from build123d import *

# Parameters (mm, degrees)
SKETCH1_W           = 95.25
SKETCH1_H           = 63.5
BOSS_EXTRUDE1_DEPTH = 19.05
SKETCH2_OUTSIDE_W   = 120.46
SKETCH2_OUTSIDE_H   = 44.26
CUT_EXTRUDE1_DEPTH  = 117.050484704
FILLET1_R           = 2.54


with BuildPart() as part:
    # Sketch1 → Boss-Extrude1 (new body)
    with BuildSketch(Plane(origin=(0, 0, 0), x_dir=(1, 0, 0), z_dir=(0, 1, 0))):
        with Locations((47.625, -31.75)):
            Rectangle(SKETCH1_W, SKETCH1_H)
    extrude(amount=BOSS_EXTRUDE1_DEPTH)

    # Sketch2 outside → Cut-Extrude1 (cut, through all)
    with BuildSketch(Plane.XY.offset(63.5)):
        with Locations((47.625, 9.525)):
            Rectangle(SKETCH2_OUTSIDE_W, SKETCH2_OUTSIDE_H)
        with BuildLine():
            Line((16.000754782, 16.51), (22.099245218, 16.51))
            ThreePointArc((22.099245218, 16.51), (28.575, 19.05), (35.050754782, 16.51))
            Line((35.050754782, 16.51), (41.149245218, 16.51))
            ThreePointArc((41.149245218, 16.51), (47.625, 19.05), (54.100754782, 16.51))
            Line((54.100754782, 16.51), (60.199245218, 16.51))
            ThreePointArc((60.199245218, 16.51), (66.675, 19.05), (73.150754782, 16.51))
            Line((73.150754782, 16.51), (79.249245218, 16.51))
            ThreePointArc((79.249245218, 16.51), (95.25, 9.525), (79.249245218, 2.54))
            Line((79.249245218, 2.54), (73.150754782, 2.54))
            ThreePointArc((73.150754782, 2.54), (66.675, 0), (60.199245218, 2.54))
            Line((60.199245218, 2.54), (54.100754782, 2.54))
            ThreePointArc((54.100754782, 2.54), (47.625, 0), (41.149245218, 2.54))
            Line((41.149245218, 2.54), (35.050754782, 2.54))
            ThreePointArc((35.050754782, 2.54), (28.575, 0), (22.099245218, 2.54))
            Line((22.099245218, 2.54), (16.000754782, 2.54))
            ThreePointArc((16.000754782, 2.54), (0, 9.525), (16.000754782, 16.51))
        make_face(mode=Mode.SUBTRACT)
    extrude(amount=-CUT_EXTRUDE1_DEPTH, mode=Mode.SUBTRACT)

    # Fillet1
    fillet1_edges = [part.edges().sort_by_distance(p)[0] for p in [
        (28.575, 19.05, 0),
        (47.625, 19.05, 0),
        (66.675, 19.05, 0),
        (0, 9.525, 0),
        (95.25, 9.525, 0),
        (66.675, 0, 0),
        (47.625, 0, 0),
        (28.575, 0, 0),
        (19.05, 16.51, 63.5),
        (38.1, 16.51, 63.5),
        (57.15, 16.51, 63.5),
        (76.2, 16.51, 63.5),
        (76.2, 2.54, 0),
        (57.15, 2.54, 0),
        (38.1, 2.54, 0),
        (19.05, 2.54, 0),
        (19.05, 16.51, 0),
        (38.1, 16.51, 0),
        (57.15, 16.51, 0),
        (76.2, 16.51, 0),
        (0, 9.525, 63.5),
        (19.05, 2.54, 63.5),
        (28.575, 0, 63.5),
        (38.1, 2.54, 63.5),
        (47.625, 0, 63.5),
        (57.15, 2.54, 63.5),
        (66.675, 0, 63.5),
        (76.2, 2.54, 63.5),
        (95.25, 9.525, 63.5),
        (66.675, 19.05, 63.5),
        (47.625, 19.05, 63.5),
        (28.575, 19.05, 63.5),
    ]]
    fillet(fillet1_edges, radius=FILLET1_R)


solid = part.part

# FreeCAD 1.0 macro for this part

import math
import FreeCAD as App
import Part
import Sketcher
Q = App.Units.Quantity


def edges_at(feature, points):
    """Names of the edges that pass closest to the given points."""
    edges = feature.Shape.Edges
    near = lambda p: min(range(len(edges)), key=lambda i: edges[i].distToShape(Part.Vertex(*p))[0])
    return sorted({f"Edge{near(p) + 1}" for p in points})


def add_polygon(sketch, points):
    """Adds a closed chain of lines whose ends are joined by coincident constraints."""
    first, n = sketch.GeometryCount, len(points)
    for a, b in zip(points, points[1:] + points[:1]):
        sketch.addGeometry(Part.LineSegment(App.Vector(*a, 0), App.Vector(*b, 0)), False)
    for i in range(n):
        sketch.addConstraint(Sketcher.Constraint("Coincident", first + i, 2, first + (i + 1) % n, 1))

doc = App.newDocument("Part")
params = doc.addObject("Spreadsheet::Sheet", "Params")
for row, (alias, value) in enumerate([
    ("sketch1_height", "2.5 in"),
    ("sketch1_width", "3.75 in"),
    ("pad1_length", "0.75 in"),
    ("sketch2_radius", "0.375 in"),
    ("fillet_radius", "0.1 in"),
], start=1):
    params.set(f"A{row}", alias)
    params.set(f"B{row}", "=" + value)
    params.setAlias(f"B{row}", alias)

body = doc.addObject("PartDesign::Body", "Body")

# Sketch on XZ plane
sketch1 = body.newObject("Sketcher::SketchObject", "Sketch")
sketch1.AttachmentSupport = (doc.getObject("XZ_Plane"), [""])
sketch1.MapMode = "FlatFace"
add_polygon(sketch1, [(0, 0), (0, 64), (95, 64), (95, 0)])  # lines 0-3
sketch1.addConstraint(Sketcher.Constraint("Vertical", 0))
sketch1.addConstraint(Sketcher.Constraint("Horizontal", 1))
sketch1.addConstraint(Sketcher.Constraint("Vertical", 2))
sketch1.addConstraint(Sketcher.Constraint("Horizontal", 3))
sketch1.addConstraint(Sketcher.Constraint("Coincident", 3, 2, -1, 1))
sketch1.addConstraint(Sketcher.Constraint("DistanceY", 0, 1, 0, 2, Q("2.5 in")))
sketch1.addConstraint(Sketcher.Constraint("DistanceX", 1, 1, 1, 2, Q("3.75 in")))
sketch1.setExpression("Constraints[9]", "Params.sketch1_height")
sketch1.setExpression("Constraints[10]", "Params.sketch1_width")
pad1 = body.newObject("PartDesign::Pad", "Pad")
pad1.Profile = sketch1
pad1.setExpression("Length", "Params.pad1_length")
pad1.Reversed = True

# Sketch on XY plane
sketch2 = body.newObject("Sketcher::SketchObject", "Sketch001")
sketch2.AttachmentSupport = (doc.getObject("XY_Plane"), [""])
sketch2.MapMode = "FlatFace"
sketch2.AttachmentOffset = App.Placement(App.Vector(0, 0, 2.5 * 25.4), App.Rotation())
add_polygon(sketch2, [(-13, 32), (-13, -13), (108, -13), (108, 32)])  # lines 0-3
sketch2.addGeometry(Part.ArcOfCircle(Part.Circle(App.Vector(10, 10, 0), App.Vector(0, 0, 1), 10), math.radians(47), math.radians(313)), False)  # 4
sketch2.addGeometry(Part.LineSegment(App.Vector(16, 17, 0), App.Vector(22, 17, 0)), False)  # 5
sketch2.addGeometry(Part.ArcOfCircle(Part.Circle(App.Vector(29, 10, 0), App.Vector(0, 0, 1), 10), math.radians(47), math.radians(133)), False)  # 6
sketch2.addGeometry(Part.LineSegment(App.Vector(35, 17, 0), App.Vector(41, 17, 0)), False)  # 7
sketch2.addGeometry(Part.ArcOfCircle(Part.Circle(App.Vector(48, 10, 0), App.Vector(0, 0, 1), 10), math.radians(47), math.radians(133)), False)  # 8
sketch2.addGeometry(Part.LineSegment(App.Vector(54, 17, 0), App.Vector(60, 17, 0)), False)  # 9
sketch2.addGeometry(Part.ArcOfCircle(Part.Circle(App.Vector(67, 10, 0), App.Vector(0, 0, 1), 10), math.radians(47), math.radians(133)), False)  # 10
sketch2.addGeometry(Part.LineSegment(App.Vector(73, 17, 0), App.Vector(79, 17, 0)), False)  # 11
sketch2.addGeometry(Part.ArcOfCircle(Part.Circle(App.Vector(86, 10, 0), App.Vector(0, 0, 1), 10), math.radians(-133), math.radians(133)), False)  # 12
sketch2.addGeometry(Part.LineSegment(App.Vector(79, 3, 0), App.Vector(73, 3, 0)), False)  # 13
sketch2.addGeometry(Part.ArcOfCircle(Part.Circle(App.Vector(67, 10, 0), App.Vector(0, 0, 1), 10), math.radians(-133), math.radians(-47)), False)  # 14
sketch2.addGeometry(Part.LineSegment(App.Vector(60, 3, 0), App.Vector(54, 3, 0)), False)  # 15
sketch2.addGeometry(Part.ArcOfCircle(Part.Circle(App.Vector(48, 10, 0), App.Vector(0, 0, 1), 10), math.radians(-133), math.radians(-47)), False)  # 16
sketch2.addGeometry(Part.LineSegment(App.Vector(41, 3, 0), App.Vector(35, 3, 0)), False)  # 17
sketch2.addGeometry(Part.ArcOfCircle(Part.Circle(App.Vector(29, 10, 0), App.Vector(0, 0, 1), 10), math.radians(-133), math.radians(-47)), False)  # 18
sketch2.addGeometry(Part.LineSegment(App.Vector(22, 3, 0), App.Vector(16, 3, 0)), False)  # 19
sketch2.addConstraint(Sketcher.Constraint("Coincident", 4, 1, 5, 1))
sketch2.addConstraint(Sketcher.Constraint("Coincident", 5, 2, 6, 2))
sketch2.addConstraint(Sketcher.Constraint("Coincident", 6, 1, 7, 1))
sketch2.addConstraint(Sketcher.Constraint("Coincident", 7, 2, 8, 2))
sketch2.addConstraint(Sketcher.Constraint("Coincident", 8, 1, 9, 1))
sketch2.addConstraint(Sketcher.Constraint("Coincident", 9, 2, 10, 2))
sketch2.addConstraint(Sketcher.Constraint("Coincident", 10, 1, 11, 1))
sketch2.addConstraint(Sketcher.Constraint("Coincident", 11, 2, 12, 2))
sketch2.addConstraint(Sketcher.Constraint("Coincident", 12, 1, 13, 1))
sketch2.addConstraint(Sketcher.Constraint("Coincident", 13, 2, 14, 2))
sketch2.addConstraint(Sketcher.Constraint("Coincident", 14, 1, 15, 1))
sketch2.addConstraint(Sketcher.Constraint("Coincident", 15, 2, 16, 2))
sketch2.addConstraint(Sketcher.Constraint("Coincident", 16, 1, 17, 1))
sketch2.addConstraint(Sketcher.Constraint("Coincident", 17, 2, 18, 2))
sketch2.addConstraint(Sketcher.Constraint("Coincident", 18, 1, 19, 1))
sketch2.addConstraint(Sketcher.Constraint("Coincident", 19, 2, 4, 2))
sketch2.addConstraint(Sketcher.Constraint("Vertical", 0))
sketch2.addConstraint(Sketcher.Constraint("Horizontal", 1))
sketch2.addConstraint(Sketcher.Constraint("Vertical", 2))
sketch2.addConstraint(Sketcher.Constraint("Horizontal", 3))
sketch2.addConstraint(Sketcher.Constraint("Horizontal", 5))
sketch2.addConstraint(Sketcher.Constraint("Horizontal", 7))
sketch2.addConstraint(Sketcher.Constraint("Horizontal", 9))
sketch2.addConstraint(Sketcher.Constraint("Horizontal", 11))
sketch2.addConstraint(Sketcher.Constraint("Horizontal", 13))
sketch2.addConstraint(Sketcher.Constraint("Horizontal", 15))
sketch2.addConstraint(Sketcher.Constraint("Horizontal", 17))
sketch2.addConstraint(Sketcher.Constraint("Horizontal", 19))
sketch2.addConstraint(Sketcher.Constraint("Coincident", 14, 3, 10, 3))
sketch2.addConstraint(Sketcher.Constraint("Coincident", 16, 3, 8, 3))
sketch2.addConstraint(Sketcher.Constraint("Coincident", 18, 3, 6, 3))
sketch2.addConstraint(Sketcher.Constraint("Equal", 4, 6))
sketch2.addConstraint(Sketcher.Constraint("Equal", 6, 8))
sketch2.addConstraint(Sketcher.Constraint("Equal", 8, 10))
sketch2.addConstraint(Sketcher.Constraint("Equal", 10, 12))
sketch2.addConstraint(Sketcher.Constraint("Equal", 12, 14))
sketch2.addConstraint(Sketcher.Constraint("Equal", 14, 16))
sketch2.addConstraint(Sketcher.Constraint("Equal", 16, 18))
sketch2.addConstraint(Sketcher.Constraint("Horizontal", 4, 3, 6, 3))
sketch2.addConstraint(Sketcher.Constraint("Horizontal", 6, 3, 8, 3))
sketch2.addConstraint(Sketcher.Constraint("Horizontal", 8, 3, 10, 3))
sketch2.addConstraint(Sketcher.Constraint("Horizontal", 10, 3, 12, 3))
sketch2.addConstraint(Sketcher.Constraint("Horizontal", 5, 2, 6, 1))
sketch2.addConstraint(Sketcher.Constraint("Horizontal", 7, 2, 8, 1))
sketch2.addConstraint(Sketcher.Constraint("Horizontal", 9, 2, 10, 1))
sketch2.addConstraint(Sketcher.Constraint("Horizontal", 13, 2, 14, 1))
sketch2.addConstraint(Sketcher.Constraint("Horizontal", 15, 2, 16, 1))
sketch2.addConstraint(Sketcher.Constraint("Horizontal", 17, 2, 18, 1))
sketch2.addConstraint(Sketcher.Constraint("Vertical", 11, 2, 12, 1))
sketch2.addConstraint(Sketcher.Constraint("Equal", 5, 7))
sketch2.addConstraint(Sketcher.Constraint("Equal", 7, 9))
sketch2.addConstraint(Sketcher.Constraint("Equal", 9, 11))
sketch2.addConstraint(Sketcher.Constraint("Radius", 4, Q("0.375 in")))
sketch2.addConstraint(Sketcher.Constraint("DistanceX", 4, 3, 12, 3, Q("3 in")))
sketch2.addConstraint(Sketcher.Constraint("DistanceY", -1, 1, 12, 1, Q("0.1 in")))
sketch2.addConstraint(Sketcher.Constraint("DistanceY", -1, 1, 4, 1, Q("0.65 in")))
sketch2.addConstraint(Sketcher.Constraint("DistanceX", -1, 1, 4, 3, Q("0.375 in")))
sketch2.addConstraint(Sketcher.Constraint("DistanceX", 1, 1, 1, 2, 120.46))
sketch2.addConstraint(Sketcher.Constraint("DistanceY", 0, 2, 0, 1, 44.26))
sketch2.addConstraint(Sketcher.Constraint("DistanceX", 0, 2, -1, 1, 12.605))
sketch2.addConstraint(Sketcher.Constraint("DistanceY", 0, 2, -1, 1, 12.605))
sketch2.setExpression("Constraints[56]", "Params.sketch2_radius")
pocket1 = body.newObject("PartDesign::Pocket", "Pocket")
pocket1.Profile = sketch2
pocket1.Type = "ThroughAll"
doc.recompute()

fillet = body.newObject("PartDesign::Fillet", "Fillet")
fillet.Base = (pocket1, edges_at(pocket1, [
    (28.575, 19.05, 0),
    (47.625, 19.05, 0),
    (66.675, 19.05, 0),
    (0, 9.525, 0),
    (95.25, 9.525, 0),
    (66.675, 0, 0),
    (47.625, 0, 0),
    (28.575, 0, 0),
    (19.05, 16.51, 63.5),
    (38.1, 16.51, 63.5),
    (57.15, 16.51, 63.5),
    (76.2, 16.51, 63.5),
    (76.2, 2.54, 0),
    (57.15, 2.54, 0),
    (38.1, 2.54, 0),
    (19.05, 2.54, 0),
    (19.05, 16.51, 0),
    (38.1, 16.51, 0),
    (57.15, 16.51, 0),
    (76.2, 16.51, 0),
    (0, 9.525, 63.5),
    (19.05, 2.54, 63.5),
    (28.575, 0, 63.5),
    (38.1, 2.54, 63.5),
    (47.625, 0, 63.5),
    (57.15, 2.54, 63.5),
    (66.675, 0, 63.5),
    (76.2, 2.54, 63.5),
    (95.25, 9.525, 63.5),
    (66.675, 19.05, 63.5),
    (47.625, 19.05, 63.5),
    (28.575, 19.05, 63.5),
]))
fillet.setExpression("Radius", "Params.fillet_radius")

doc.recompute()
